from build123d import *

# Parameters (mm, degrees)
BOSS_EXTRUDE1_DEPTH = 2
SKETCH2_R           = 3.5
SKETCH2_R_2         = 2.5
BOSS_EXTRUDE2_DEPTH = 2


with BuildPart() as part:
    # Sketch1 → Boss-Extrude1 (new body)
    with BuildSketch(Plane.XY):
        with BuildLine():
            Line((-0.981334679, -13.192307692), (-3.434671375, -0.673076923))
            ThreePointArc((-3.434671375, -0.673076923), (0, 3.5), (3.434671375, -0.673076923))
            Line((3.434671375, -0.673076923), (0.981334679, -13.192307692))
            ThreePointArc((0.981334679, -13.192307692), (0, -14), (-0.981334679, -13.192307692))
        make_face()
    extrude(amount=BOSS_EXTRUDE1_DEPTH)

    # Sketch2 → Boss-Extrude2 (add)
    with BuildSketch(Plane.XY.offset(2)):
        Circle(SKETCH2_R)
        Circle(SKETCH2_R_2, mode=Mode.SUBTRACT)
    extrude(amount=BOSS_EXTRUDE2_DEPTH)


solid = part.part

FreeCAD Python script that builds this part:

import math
import FreeCAD as App
import Part
import Sketcher
Q = App.Units.Quantity

doc = App.newDocument("Part")
body = doc.addObject("PartDesign::Body", "Body")

# Sketch on XY plane
sketch1 = body.newObject("Sketcher::SketchObject", "Sketch")
sketch1.AttachmentSupport = (doc.getObject("XY_Plane"), [""])
sketch1.MapMode = "FlatFace"
sketch1.addGeometry([
    Part.LineSegment(App.Vector(-3.4, -0.7, 0), App.Vector(-1, -13.2, 0)),
    Part.ArcOfCircle(Part.Circle(App.Vector(0, -13, 0), App.Vector(0, 0, 1), 1), math.radians(-169), math.radians(-11)),
    Part.LineSegment(App.Vector(1, -13.2, 0), App.Vector(3.4, -0.7, 0)),
    Part.ArcOfCircle(Part.Circle(App.Vector(0, 0, 0), App.Vector(0, 0, 1), 3.5), math.radians(-11), math.radians(191)),
], False)
sketch1.addConstraint([
    Sketcher.Constraint("Tangent", 0, 2, 1, 1),
    Sketcher.Constraint("Tangent", 1, 2, 2, 1),
    Sketcher.Constraint("Tangent", 2, 2, 3, 1),
    Sketcher.Constraint("Tangent", 3, 2, 0, 1),
    Sketcher.Constraint("Coincident", 3, 3, -1, 1),
    Sketcher.Constraint("PointOnObject", 1, 3, -2),
    Sketcher.Constraint("Radius", 1, Q("1 mm")),
    Sketcher.Constraint("Radius", 3, Q("3.5 mm")),
    Sketcher.Constraint("DistanceY", 1, 3, -1, 1, Q("13 mm")),
])
pad1 = body.newObject("PartDesign::Pad", "Pad")
pad1.Profile = sketch1
pad1.Length = 2

# Sketch on XY plane
sketch2 = body.newObject("Sketcher::SketchObject", "Sketch001")
sketch2.AttachmentSupport = (doc.getObject("XY_Plane"), [""])
sketch2.MapMode = "FlatFace"
sketch2.AttachmentOffset = App.Placement(App.Vector(0, 0, 2), App.Rotation())
sketch2.addGeometry([
    Part.Circle(App.Vector(0, 0, 0), App.Vector(0, 0, 1), 3.5),
    Part.Circle(App.Vector(0, 0, 0), App.Vector(0, 0, 1), 2.5),
], False)
sketch2.addConstraint([
    Sketcher.Constraint("Coincident", 0, 3, -1, 1),
    Sketcher.Constraint("Coincident", 1, 3, -1, 1),
    Sketcher.Constraint("Diameter", 0, Q("7 mm")),
    Sketcher.Constraint("Diameter", 1, Q("5 mm")),
])
pad2 = body.newObject("PartDesign::Pad", "Pad001")
pad2.Profile = sketch2
pad2.Length = 2

doc.recompute()
